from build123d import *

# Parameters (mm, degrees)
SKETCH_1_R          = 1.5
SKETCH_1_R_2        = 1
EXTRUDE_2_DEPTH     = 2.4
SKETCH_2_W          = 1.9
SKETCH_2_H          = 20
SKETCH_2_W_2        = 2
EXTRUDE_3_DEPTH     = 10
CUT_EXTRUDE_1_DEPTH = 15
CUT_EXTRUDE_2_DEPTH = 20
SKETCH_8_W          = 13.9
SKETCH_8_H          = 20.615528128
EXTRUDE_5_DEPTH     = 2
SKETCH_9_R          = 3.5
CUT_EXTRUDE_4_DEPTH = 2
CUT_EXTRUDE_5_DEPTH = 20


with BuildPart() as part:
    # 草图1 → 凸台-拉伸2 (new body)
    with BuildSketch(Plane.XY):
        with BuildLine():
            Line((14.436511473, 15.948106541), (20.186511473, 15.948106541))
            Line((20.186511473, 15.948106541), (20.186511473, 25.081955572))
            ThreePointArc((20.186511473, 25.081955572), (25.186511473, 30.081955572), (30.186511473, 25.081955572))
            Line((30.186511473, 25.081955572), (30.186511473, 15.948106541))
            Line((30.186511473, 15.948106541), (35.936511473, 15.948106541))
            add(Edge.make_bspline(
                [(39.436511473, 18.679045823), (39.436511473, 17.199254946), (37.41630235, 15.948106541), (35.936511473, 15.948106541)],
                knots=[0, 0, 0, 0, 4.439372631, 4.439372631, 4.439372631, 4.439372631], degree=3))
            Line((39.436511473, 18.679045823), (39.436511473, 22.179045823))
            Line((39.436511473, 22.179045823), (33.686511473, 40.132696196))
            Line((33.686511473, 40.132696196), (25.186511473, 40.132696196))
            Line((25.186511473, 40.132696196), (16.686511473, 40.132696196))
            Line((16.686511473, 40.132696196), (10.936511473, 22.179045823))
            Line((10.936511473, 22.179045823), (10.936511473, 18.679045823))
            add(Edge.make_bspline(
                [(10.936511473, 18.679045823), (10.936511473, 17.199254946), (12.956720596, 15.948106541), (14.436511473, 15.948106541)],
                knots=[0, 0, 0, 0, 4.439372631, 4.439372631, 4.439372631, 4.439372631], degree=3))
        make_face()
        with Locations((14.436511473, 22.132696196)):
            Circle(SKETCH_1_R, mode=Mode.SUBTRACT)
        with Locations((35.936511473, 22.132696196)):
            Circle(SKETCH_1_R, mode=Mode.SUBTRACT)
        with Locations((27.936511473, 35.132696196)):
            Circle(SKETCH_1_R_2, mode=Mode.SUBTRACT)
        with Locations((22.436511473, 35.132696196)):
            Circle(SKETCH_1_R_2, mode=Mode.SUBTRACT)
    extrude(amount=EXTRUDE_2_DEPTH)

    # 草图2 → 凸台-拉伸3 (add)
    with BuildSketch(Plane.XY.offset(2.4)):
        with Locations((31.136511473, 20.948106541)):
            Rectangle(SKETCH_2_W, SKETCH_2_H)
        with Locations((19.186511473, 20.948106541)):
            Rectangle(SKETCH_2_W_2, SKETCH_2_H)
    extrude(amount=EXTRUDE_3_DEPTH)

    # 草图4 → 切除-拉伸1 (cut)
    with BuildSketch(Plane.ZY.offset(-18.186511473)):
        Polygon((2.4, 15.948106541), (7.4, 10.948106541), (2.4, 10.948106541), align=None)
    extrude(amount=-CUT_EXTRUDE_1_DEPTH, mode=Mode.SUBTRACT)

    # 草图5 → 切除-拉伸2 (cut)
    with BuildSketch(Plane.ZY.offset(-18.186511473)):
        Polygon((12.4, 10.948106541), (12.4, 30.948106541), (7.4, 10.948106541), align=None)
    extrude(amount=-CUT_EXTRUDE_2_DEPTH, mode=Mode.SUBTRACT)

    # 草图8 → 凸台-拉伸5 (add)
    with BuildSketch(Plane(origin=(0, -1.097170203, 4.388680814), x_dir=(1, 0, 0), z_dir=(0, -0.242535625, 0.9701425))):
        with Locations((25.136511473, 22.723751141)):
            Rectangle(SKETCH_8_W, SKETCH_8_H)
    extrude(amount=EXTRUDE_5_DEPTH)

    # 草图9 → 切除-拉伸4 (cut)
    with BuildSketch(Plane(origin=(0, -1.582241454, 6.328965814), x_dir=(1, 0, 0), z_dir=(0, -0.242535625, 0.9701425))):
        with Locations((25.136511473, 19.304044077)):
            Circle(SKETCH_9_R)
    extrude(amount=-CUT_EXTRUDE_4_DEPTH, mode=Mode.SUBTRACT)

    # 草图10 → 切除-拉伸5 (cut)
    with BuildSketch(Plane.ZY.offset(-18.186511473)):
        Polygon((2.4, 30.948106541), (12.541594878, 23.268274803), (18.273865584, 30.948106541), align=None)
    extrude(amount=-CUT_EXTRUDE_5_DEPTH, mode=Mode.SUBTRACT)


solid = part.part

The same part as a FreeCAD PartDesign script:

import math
import FreeCAD as App
import Part
import Sketcher
Q = App.Units.Quantity

doc = App.newDocument("Part")
body = doc.addObject("PartDesign::Body", "Body")

sketch1 = body.newObject("Sketcher::SketchObject", "Sketch")
sketch1.AttachmentSupport = (doc.getObject("XY_Plane"), [""])
sketch1.MapMode = "FlatFace"
sketch1.addGeometry(Part.LineSegment(App.Vector(14.436511, 15.948107, 0), App.Vector(20.186511, 15.948107, 0)), False)
sketch1.addGeometry(Part.LineSegment(App.Vector(20.186511, 15.948107, 0), App.Vector(20.186511, 25.081956, 0)), False)
sketch1.addGeometry(Part.ArcOfCircle(Part.Circle(App.Vector(25.186511, 25.081956, 0), App.Vector(0, 0, 1), 5), math.radians(0), math.radians(180)), False)
sketch1.addGeometry(Part.LineSegment(App.Vector(30.186511, 25.081956, 0), App.Vector(30.186511, 15.948107, 0)), False)
sketch1.addGeometry(Part.LineSegment(App.Vector(30.186511, 15.948107, 0), App.Vector(35.936511, 15.948107, 0)), False)
sketch1.addGeometry(Part.BSplineCurve([App.Vector(39.436511, 18.679046, 0), App.Vector(39.436511, 17.199255, 0), App.Vector(37.416302, 15.948107, 0), App.Vector(35.936511, 15.948107, 0)], [4, 4], [0, 4.439372631], False, 3, [1, 1, 1, 1], False), False)
sketch1.addGeometry(Part.LineSegment(App.Vector(39.436511, 18.679046, 0), App.Vector(39.436511, 22.179046, 0)), False)
sketch1.addGeometry(Part.LineSegment(App.Vector(39.436511, 22.179046, 0), App.Vector(33.686511, 40.132696, 0)), False)
sketch1.addGeometry(Part.LineSegment(App.Vector(33.686511, 40.132696, 0), App.Vector(16.686511, 40.132696, 0)), False)
sketch1.addGeometry(Part.LineSegment(App.Vector(16.686511, 40.132696, 0), App.Vector(10.936511, 22.179046, 0)), False)
sketch1.addGeometry(Part.LineSegment(App.Vector(10.936511, 22.179046, 0), App.Vector(10.936511, 18.679046, 0)), False)
sketch1.addGeometry(Part.BSplineCurve([App.Vector(10.936511, 18.679046, 0), App.Vector(10.936511, 17.199255, 0), App.Vector(12.956721, 15.948107, 0), App.Vector(14.436511, 15.948107, 0)], [4, 4], [0, 4.439372631], False, 3, [1, 1, 1, 1], False), False)
sketch1.addGeometry(Part.Circle(App.Vector(14.436511, 22.132696, 0), App.Vector(0, 0, 1), 1.5), False)
sketch1.addGeometry(Part.Circle(App.Vector(35.936511, 22.132696, 0), App.Vector(0, 0, 1), 1.5), False)
sketch1.addGeometry(Part.Circle(App.Vector(22.436511, 35.132696, 0), App.Vector(0, 0, 1), 1), False)
sketch1.addGeometry(Part.Circle(App.Vector(27.936511, 35.132696, 0), App.Vector(0, 0, 1), 1), False)
sketch1.addConstraint(Sketcher.Constraint("Block", 5))
sketch1.addConstraint(Sketcher.Constraint("Block", 11))
sketch1.addConstraint(Sketcher.Constraint("Coincident", 0, 2, 1, 1))
sketch1.addConstraint(Sketcher.Constraint("Tangent", 1, 2, 2, 2))
sketch1.addConstraint(Sketcher.Constraint("Tangent", 2, 1, 3, 1))
sketch1.addConstraint(Sketcher.Constraint("Coincident", 3, 2, 4, 1))
sketch1.addConstraint(Sketcher.Constraint("Coincident", 4, 2, 5, 2))
sketch1.addConstraint(Sketcher.Constraint("Coincident", 5, 1, 6, 1))
sketch1.addConstraint(Sketcher.Constraint("Coincident", 6, 2, 7, 1))
sketch1.addConstraint(Sketcher.Constraint("Coincident", 7, 2, 8, 1))
sketch1.addConstraint(Sketcher.Constraint("Coincident", 8, 2, 9, 1))
sketch1.addConstraint(Sketcher.Constraint("Coincident", 9, 2, 10, 1))
sketch1.addConstraint(Sketcher.Constraint("Coincident", 10, 2, 11, 1))
sketch1.addConstraint(Sketcher.Constraint("Coincident", 11, 2, 0, 1))
sketch1.addConstraint(Sketcher.Constraint("Horizontal", 0))
sketch1.addConstraint(Sketcher.Constraint("Vertical", 1))
sketch1.addConstraint(Sketcher.Constraint("Vertical", 3))
sketch1.addConstraint(Sketcher.Constraint("Horizontal", 4))
sketch1.addConstraint(Sketcher.Constraint("Vertical", 6))
sketch1.addConstraint(Sketcher.Constraint("Horizontal", 8))
sketch1.addConstraint(Sketcher.Constraint("Vertical", 10))
sketch1.addConstraint(Sketcher.Constraint("Equal", 12, 13))
sketch1.addConstraint(Sketcher.Constraint("Equal", 14, 15))
sketch1.addConstraint(Sketcher.Constraint("Horizontal", 12, 3, 13, 3))
sketch1.addConstraint(Sketcher.Constraint("Horizontal", 14, 3, 15, 3))
sketch1.addConstraint(Sketcher.Constraint("Horizontal", 6, 2, 9, 2))
sketch1.addConstraint(Sketcher.Constraint("Vertical", 13, 3, 4, 2))
sketch1.addConstraint(Sketcher.Constraint("Equal", 0, 4))
sketch1.addConstraint(Sketcher.Constraint("Equal", 7, 9))
sketch1.addConstraint(Sketcher.Constraint("Diameter", 12, Q("3 mm")))
sketch1.addConstraint(Sketcher.Constraint("Diameter", 14, Q("2 mm")))
sketch1.addConstraint(Sketcher.Constraint("Radius", 2, Q("5 mm")))
sketch1.addConstraint(Sketcher.Constraint("DistanceX", 8, 2, 8, 1, Q("17 mm")))
sketch1.addConstraint(Sketcher.Constraint("DistanceY", 6, 1, 6, 2, Q("3.5 mm")))
sketch1.addConstraint(Sketcher.Constraint("DistanceX", 12, 3, 14, 3, Q("8 mm")))
sketch1.addConstraint(Sketcher.Constraint("DistanceY", 12, 3, 14, 3, Q("13 mm")))
sketch1.addConstraint(Sketcher.Constraint("DistanceX", 15, 3, 13, 3, Q("8 mm")))
sketch1.addConstraint(Sketcher.Constraint("DistanceY", 15, 3, 7, 2, Q("5 mm")))
sketch1.addConstraint(Sketcher.Constraint("DistanceX", 12, 3, 13, 3, Q("21.5 mm")))
sketch1.addConstraint(Sketcher.Constraint("DistanceY", 1, 1, 1, 2, Q("9.133849 mm")))
sketch1.addConstraint(Sketcher.Constraint("Distance", 7, Q("18.851951 mm")))
pad1 = body.newObject("PartDesign::Pad", "Pad")
pad1.Profile = sketch1
pad1.Length = 2.4

sketch2 = body.newObject("Sketcher::SketchObject", "Sketch001")
sketch2.AttachmentSupport = (doc.getObject("XY_Plane"), [""])
sketch2.MapMode = "FlatFace"
sketch2.AttachmentOffset = App.Placement(App.Vector(0, 0, 2.4), App.Rotation())
sketch2.addGeometry(Part.LineSegment(App.Vector(30.2, 30.9, 0), App.Vector(30.2, 10.9, 0)), False)
sketch2.addGeometry(Part.LineSegment(App.Vector(30.2, 10.9, 0), App.Vector(32.1, 10.9, 0)), False)
sketch2.addGeometry(Part.LineSegment(App.Vector(32.1, 10.9, 0), App.Vector(32.1, 30.9, 0)), False)
sketch2.addGeometry(Part.LineSegment(App.Vector(32.1, 30.9, 0), App.Vector(30.2, 30.9, 0)), False)
sketch2.addGeometry(Part.LineSegment(App.Vector(18.2, 30.9, 0), App.Vector(18.2, 10.9, 0)), False)
sketch2.addGeometry(Part.LineSegment(App.Vector(18.2, 10.9, 0), App.Vector(20.2, 10.9, 0)), False)
sketch2.addGeometry(Part.LineSegment(App.Vector(20.2, 10.9, 0), App.Vector(20.2, 30.9, 0)), False)
sketch2.addGeometry(Part.LineSegment(App.Vector(20.2, 30.9, 0), App.Vector(18.2, 30.9, 0)), False)
sketch2.addConstraint(Sketcher.Constraint("Coincident", 0, 2, 1, 1))
sketch2.addConstraint(Sketcher.Constraint("Coincident", 1, 2, 2, 1))
sketch2.addConstraint(Sketcher.Constraint("Coincident", 2, 2, 3, 1))
sketch2.addConstraint(Sketcher.Constraint("Coincident", 3, 2, 0, 1))
sketch2.addConstraint(Sketcher.Constraint("Coincident", 4, 2, 5, 1))
sketch2.addConstraint(Sketcher.Constraint("Coincident", 5, 2, 6, 1))
sketch2.addConstraint(Sketcher.Constraint("Coincident", 6, 2, 7, 1))
sketch2.addConstraint(Sketcher.Constraint("Coincident", 7, 2, 4, 1))
sketch2.addConstraint(Sketcher.Constraint("Vertical", 0))
sketch2.addConstraint(Sketcher.Constraint("Horizontal", 1))
sketch2.addConstraint(Sketcher.Constraint("Vertical", 2))
sketch2.addConstraint(Sketcher.Constraint("Horizontal", 3))
sketch2.addConstraint(Sketcher.Constraint("Vertical", 4))
sketch2.addConstraint(Sketcher.Constraint("Horizontal", 5))
sketch2.addConstraint(Sketcher.Constraint("Vertical", 6))
sketch2.addConstraint(Sketcher.Constraint("Horizontal", 7))
sketch2.addConstraint(Sketcher.Constraint("Horizontal", 1, 2, 4, 2))
sketch2.addConstraint(Sketcher.Constraint("Horizontal", 3, 2, 6, 2))
sketch2.addConstraint(Sketcher.Constraint("DistanceX", 5, 1, 5, 2, Q("2 mm")))
sketch2.addConstraint(Sketcher.Constraint("DistanceY", 0, 2, 0, 1, Q("20 mm")))
sketch2.addConstraint(Sketcher.Constraint("DistanceX", 1, 1, 1, 2, Q("1.9 mm")))
sketch2.addConstraint(Sketcher.Constraint("DistanceX", 4, 2, 0, 2, Q("12 mm")))
sketch2.addConstraint(Sketcher.Constraint("DistanceX", -1, 1, 0, 2, Q("30.186511 mm")))
sketch2.addConstraint(Sketcher.Constraint("DistanceY", -1, 1, 0, 2, Q("10.948107 mm")))
pad2 = body.newObject("PartDesign::Pad", "Pad001")
pad2.Profile = sketch2
pad2.Length = 10

sketch3 = body.newObject("Sketcher::SketchObject", "Sketch002")
sketch3.AttachmentSupport = (doc.getObject("YZ_Plane"), [""])
sketch3.MapMode = "FlatFace"
sketch3.AttachmentOffset = App.Placement(App.Vector(0, 0, 18.186511), App.Rotation())
sketch3.addGeometry(Part.LineSegment(App.Vector(11, 7, 0), App.Vector(16, 2, 0)), False)
sketch3.addGeometry(Part.LineSegment(App.Vector(16, 2, 0), App.Vector(11, 2, 0)), False)
sketch3.addGeometry(Part.LineSegment(App.Vector(11, 2, 0), App.Vector(11, 7, 0)), False)
sketch3.addConstraint(Sketcher.Constraint("Coincident", 0, 2, 1, 1))
sketch3.addConstraint(Sketcher.Constraint("Coincident", 1, 2, 2, 1))
sketch3.addConstraint(Sketcher.Constraint("Coincident", 2, 2, 0, 1))
sketch3.addConstraint(Sketcher.Constraint("Horizontal", 1))
sketch3.addConstraint(Sketcher.Constraint("Vertical", 2))
sketch3.addConstraint(Sketcher.Constraint("Equal", 1, 2))
sketch3.addConstraint(Sketcher.Constraint("DistanceX", 1, 2, 1, 1, Q("5 mm")))
sketch3.addConstraint(Sketcher.Constraint("DistanceY", -1, 1, 0, 2, Q("2.4 mm")))
sketch3.addConstraint(Sketcher.Constraint("DistanceX", -1, 1, 0, 2, Q("15.948107 mm")))
pocket1 = body.newObject("PartDesign::Pocket", "Pocket")
pocket1.Profile = sketch3
pocket1.Length = 15
pocket1.Reversed = True

sketch4 = body.newObject("Sketcher::SketchObject", "Sketch003")
sketch4.AttachmentSupport = (doc.getObject("YZ_Plane"), [""])
sketch4.MapMode = "FlatFace"
sketch4.AttachmentOffset = App.Placement(App.Vector(0, 0, 18.186511), App.Rotation())
sketch4.addGeometry(Part.LineSegment(App.Vector(11, 12, 0), App.Vector(31, 12, 0)), False)
sketch4.addGeometry(Part.LineSegment(App.Vector(31, 12, 0), App.Vector(11, 7, 0)), False)
sketch4.addGeometry(Part.LineSegment(App.Vector(11, 7, 0), App.Vector(11, 12, 0)), False)
sketch4.addConstraint(Sketcher.Constraint("Coincident", 0, 2, 1, 1))
sketch4.addConstraint(Sketcher.Constraint("Coincident", 1, 2, 2, 1))
sketch4.addConstraint(Sketcher.Constraint("Coincident", 2, 2, 0, 1))
sketch4.addConstraint(Sketcher.Constraint("Horizontal", 0))
sketch4.addConstraint(Sketcher.Constraint("Vertical", 2))
sketch4.addConstraint(Sketcher.Constraint("DistanceX", 0, 1, 0, 2, Q("20 mm")))
sketch4.addConstraint(Sketcher.Constraint("DistanceY", 2, 1, 2, 2, Q("5 mm")))
sketch4.addConstraint(Sketcher.Constraint("DistanceY", -1, 1, 0, 2, Q("12.4 mm")))
sketch4.addConstraint(Sketcher.Constraint("DistanceX", -1, 1, 0, 2, Q("30.948107 mm")))
pocket2 = body.newObject("PartDesign::Pocket", "Pocket001")
pocket2.Profile = sketch4
pocket2.Length = 20
pocket2.Reversed = True

sketch5 = body.newObject("Sketcher::SketchObject", "Sketch004")
sketch5.Placement = App.Placement(App.Vector(0, -1.09717, 4.388681), App.Rotation(App.Vector(1, 0, 0), App.Vector(0, 0.9701425, 0.242535625), App.Vector(0, -0.242535625, 0.9701425), "ZXY"))
sketch5.addGeometry(Part.LineSegment(App.Vector(18, 33, 0), App.Vector(18, 12, 0)), False)
sketch5.addGeometry(Part.LineSegment(App.Vector(18, 12, 0), App.Vector(32, 12, 0)), False)
sketch5.addGeometry(Part.LineSegment(App.Vector(32, 12, 0), App.Vector(32, 33, 0)), False)
sketch5.addGeometry(Part.LineSegment(App.Vector(32, 33, 0), App.Vector(18, 33, 0)), False)
sketch5.addConstraint(Sketcher.Constraint("Coincident", 0, 2, 1, 1))
sketch5.addConstraint(Sketcher.Constraint("Coincident", 1, 2, 2, 1))
sketch5.addConstraint(Sketcher.Constraint("Coincident", 2, 2, 3, 1))
sketch5.addConstraint(Sketcher.Constraint("Coincident", 3, 2, 0, 1))
sketch5.addConstraint(Sketcher.Constraint("Vertical", 0))
sketch5.addConstraint(Sketcher.Constraint("Horizontal", 1))
sketch5.addConstraint(Sketcher.Constraint("Vertical", 2))
sketch5.addConstraint(Sketcher.Constraint("Horizontal", 3))
sketch5.addConstraint(Sketcher.Constraint("DistanceX", 1, 1, 1, 2, Q("13.9 mm")))
sketch5.addConstraint(Sketcher.Constraint("DistanceY", 0, 2, 0, 1, Q("20.615528 mm")))
sketch5.addConstraint(Sketcher.Constraint("DistanceX", -1, 1, 0, 2, Q("18.186511 mm")))
sketch5.addConstraint(Sketcher.Constraint("DistanceY", -1, 1, 0, 2, Q("12.415987 mm")))
pad3 = body.newObject("PartDesign::Pad", "Pad002")
pad3.Profile = sketch5
pad3.Length = 2

sketch6 = body.newObject("Sketcher::SketchObject", "Sketch005")
sketch6.Placement = App.Placement(App.Vector(0, -1.582241, 6.328966), App.Rotation(App.Vector(1, 0, 0), App.Vector(0, 0.9701425, 0.242535625), App.Vector(0, -0.242535625, 0.9701425), "ZXY"))
sketch6.addGeometry(Part.Circle(App.Vector(25.1, 19.3, 0), App.Vector(0, 0, 1), 3.5), False)
sketch6.addConstraint(Sketcher.Constraint("Diameter", 0, Q("7 mm")))
sketch6.addConstraint(Sketcher.Constraint("DistanceX", -1, 1, 0, 3, Q("25.136511 mm")))
sketch6.addConstraint(Sketcher.Constraint("DistanceY", -1, 1, 0, 3, Q("19.304044 mm")))
pocket3 = body.newObject("PartDesign::Pocket", "Pocket002")
pocket3.Profile = sketch6
pocket3.Length = 2

sketch7 = body.newObject("Sketcher::SketchObject", "Sketch006")
sketch7.AttachmentSupport = (doc.getObject("YZ_Plane"), [""])
sketch7.MapMode = "FlatFace"
sketch7.AttachmentOffset = App.Placement(App.Vector(0, 0, 18.186511), App.Rotation())
sketch7.addGeometry(Part.LineSegment(App.Vector(31, 2, 0), App.Vector(23, 13, 0)), False)
sketch7.addGeometry(Part.LineSegment(App.Vector(23, 13, 0), App.Vector(31, 18, 0)), False)
sketch7.addGeometry(Part.LineSegment(App.Vector(31, 18, 0), App.Vector(31, 2, 0)), False)
sketch7.addConstraint(Sketcher.Constraint("Coincident", 0, 2, 1, 1))
sketch7.addConstraint(Sketcher.Constraint("Coincident", 1, 2, 2, 1))
sketch7.addConstraint(Sketcher.Constraint("Coincident", 2, 2, 0, 1))
sketch7.addConstraint(Sketcher.Constraint("Vertical", 2))
sketch7.addConstraint(Sketcher.Constraint("DistanceY", -1, 1, 2, 2, Q("2.4 mm")))
sketch7.addConstraint(Sketcher.Constraint("Distance", 0, Q("12.721311 mm")))
sketch7.addConstraint(Sketcher.Constraint("DistanceY", 2, 2, 2, 1, Q("15.873866 mm")))
sketch7.addConstraint(Sketcher.Constraint("DistanceX", 0, 2, 1, 2, Q("7.679832 mm")))
sketch7.addConstraint(Sketcher.Constraint("DistanceX", -1, 1, 0, 2, Q("23.268275 mm")))
pocket4 = body.newObject("PartDesign::Pocket", "Pocket003")
pocket4.Profile = sketch7
pocket4.Length = 20
pocket4.Reversed = True

doc.recompute()
